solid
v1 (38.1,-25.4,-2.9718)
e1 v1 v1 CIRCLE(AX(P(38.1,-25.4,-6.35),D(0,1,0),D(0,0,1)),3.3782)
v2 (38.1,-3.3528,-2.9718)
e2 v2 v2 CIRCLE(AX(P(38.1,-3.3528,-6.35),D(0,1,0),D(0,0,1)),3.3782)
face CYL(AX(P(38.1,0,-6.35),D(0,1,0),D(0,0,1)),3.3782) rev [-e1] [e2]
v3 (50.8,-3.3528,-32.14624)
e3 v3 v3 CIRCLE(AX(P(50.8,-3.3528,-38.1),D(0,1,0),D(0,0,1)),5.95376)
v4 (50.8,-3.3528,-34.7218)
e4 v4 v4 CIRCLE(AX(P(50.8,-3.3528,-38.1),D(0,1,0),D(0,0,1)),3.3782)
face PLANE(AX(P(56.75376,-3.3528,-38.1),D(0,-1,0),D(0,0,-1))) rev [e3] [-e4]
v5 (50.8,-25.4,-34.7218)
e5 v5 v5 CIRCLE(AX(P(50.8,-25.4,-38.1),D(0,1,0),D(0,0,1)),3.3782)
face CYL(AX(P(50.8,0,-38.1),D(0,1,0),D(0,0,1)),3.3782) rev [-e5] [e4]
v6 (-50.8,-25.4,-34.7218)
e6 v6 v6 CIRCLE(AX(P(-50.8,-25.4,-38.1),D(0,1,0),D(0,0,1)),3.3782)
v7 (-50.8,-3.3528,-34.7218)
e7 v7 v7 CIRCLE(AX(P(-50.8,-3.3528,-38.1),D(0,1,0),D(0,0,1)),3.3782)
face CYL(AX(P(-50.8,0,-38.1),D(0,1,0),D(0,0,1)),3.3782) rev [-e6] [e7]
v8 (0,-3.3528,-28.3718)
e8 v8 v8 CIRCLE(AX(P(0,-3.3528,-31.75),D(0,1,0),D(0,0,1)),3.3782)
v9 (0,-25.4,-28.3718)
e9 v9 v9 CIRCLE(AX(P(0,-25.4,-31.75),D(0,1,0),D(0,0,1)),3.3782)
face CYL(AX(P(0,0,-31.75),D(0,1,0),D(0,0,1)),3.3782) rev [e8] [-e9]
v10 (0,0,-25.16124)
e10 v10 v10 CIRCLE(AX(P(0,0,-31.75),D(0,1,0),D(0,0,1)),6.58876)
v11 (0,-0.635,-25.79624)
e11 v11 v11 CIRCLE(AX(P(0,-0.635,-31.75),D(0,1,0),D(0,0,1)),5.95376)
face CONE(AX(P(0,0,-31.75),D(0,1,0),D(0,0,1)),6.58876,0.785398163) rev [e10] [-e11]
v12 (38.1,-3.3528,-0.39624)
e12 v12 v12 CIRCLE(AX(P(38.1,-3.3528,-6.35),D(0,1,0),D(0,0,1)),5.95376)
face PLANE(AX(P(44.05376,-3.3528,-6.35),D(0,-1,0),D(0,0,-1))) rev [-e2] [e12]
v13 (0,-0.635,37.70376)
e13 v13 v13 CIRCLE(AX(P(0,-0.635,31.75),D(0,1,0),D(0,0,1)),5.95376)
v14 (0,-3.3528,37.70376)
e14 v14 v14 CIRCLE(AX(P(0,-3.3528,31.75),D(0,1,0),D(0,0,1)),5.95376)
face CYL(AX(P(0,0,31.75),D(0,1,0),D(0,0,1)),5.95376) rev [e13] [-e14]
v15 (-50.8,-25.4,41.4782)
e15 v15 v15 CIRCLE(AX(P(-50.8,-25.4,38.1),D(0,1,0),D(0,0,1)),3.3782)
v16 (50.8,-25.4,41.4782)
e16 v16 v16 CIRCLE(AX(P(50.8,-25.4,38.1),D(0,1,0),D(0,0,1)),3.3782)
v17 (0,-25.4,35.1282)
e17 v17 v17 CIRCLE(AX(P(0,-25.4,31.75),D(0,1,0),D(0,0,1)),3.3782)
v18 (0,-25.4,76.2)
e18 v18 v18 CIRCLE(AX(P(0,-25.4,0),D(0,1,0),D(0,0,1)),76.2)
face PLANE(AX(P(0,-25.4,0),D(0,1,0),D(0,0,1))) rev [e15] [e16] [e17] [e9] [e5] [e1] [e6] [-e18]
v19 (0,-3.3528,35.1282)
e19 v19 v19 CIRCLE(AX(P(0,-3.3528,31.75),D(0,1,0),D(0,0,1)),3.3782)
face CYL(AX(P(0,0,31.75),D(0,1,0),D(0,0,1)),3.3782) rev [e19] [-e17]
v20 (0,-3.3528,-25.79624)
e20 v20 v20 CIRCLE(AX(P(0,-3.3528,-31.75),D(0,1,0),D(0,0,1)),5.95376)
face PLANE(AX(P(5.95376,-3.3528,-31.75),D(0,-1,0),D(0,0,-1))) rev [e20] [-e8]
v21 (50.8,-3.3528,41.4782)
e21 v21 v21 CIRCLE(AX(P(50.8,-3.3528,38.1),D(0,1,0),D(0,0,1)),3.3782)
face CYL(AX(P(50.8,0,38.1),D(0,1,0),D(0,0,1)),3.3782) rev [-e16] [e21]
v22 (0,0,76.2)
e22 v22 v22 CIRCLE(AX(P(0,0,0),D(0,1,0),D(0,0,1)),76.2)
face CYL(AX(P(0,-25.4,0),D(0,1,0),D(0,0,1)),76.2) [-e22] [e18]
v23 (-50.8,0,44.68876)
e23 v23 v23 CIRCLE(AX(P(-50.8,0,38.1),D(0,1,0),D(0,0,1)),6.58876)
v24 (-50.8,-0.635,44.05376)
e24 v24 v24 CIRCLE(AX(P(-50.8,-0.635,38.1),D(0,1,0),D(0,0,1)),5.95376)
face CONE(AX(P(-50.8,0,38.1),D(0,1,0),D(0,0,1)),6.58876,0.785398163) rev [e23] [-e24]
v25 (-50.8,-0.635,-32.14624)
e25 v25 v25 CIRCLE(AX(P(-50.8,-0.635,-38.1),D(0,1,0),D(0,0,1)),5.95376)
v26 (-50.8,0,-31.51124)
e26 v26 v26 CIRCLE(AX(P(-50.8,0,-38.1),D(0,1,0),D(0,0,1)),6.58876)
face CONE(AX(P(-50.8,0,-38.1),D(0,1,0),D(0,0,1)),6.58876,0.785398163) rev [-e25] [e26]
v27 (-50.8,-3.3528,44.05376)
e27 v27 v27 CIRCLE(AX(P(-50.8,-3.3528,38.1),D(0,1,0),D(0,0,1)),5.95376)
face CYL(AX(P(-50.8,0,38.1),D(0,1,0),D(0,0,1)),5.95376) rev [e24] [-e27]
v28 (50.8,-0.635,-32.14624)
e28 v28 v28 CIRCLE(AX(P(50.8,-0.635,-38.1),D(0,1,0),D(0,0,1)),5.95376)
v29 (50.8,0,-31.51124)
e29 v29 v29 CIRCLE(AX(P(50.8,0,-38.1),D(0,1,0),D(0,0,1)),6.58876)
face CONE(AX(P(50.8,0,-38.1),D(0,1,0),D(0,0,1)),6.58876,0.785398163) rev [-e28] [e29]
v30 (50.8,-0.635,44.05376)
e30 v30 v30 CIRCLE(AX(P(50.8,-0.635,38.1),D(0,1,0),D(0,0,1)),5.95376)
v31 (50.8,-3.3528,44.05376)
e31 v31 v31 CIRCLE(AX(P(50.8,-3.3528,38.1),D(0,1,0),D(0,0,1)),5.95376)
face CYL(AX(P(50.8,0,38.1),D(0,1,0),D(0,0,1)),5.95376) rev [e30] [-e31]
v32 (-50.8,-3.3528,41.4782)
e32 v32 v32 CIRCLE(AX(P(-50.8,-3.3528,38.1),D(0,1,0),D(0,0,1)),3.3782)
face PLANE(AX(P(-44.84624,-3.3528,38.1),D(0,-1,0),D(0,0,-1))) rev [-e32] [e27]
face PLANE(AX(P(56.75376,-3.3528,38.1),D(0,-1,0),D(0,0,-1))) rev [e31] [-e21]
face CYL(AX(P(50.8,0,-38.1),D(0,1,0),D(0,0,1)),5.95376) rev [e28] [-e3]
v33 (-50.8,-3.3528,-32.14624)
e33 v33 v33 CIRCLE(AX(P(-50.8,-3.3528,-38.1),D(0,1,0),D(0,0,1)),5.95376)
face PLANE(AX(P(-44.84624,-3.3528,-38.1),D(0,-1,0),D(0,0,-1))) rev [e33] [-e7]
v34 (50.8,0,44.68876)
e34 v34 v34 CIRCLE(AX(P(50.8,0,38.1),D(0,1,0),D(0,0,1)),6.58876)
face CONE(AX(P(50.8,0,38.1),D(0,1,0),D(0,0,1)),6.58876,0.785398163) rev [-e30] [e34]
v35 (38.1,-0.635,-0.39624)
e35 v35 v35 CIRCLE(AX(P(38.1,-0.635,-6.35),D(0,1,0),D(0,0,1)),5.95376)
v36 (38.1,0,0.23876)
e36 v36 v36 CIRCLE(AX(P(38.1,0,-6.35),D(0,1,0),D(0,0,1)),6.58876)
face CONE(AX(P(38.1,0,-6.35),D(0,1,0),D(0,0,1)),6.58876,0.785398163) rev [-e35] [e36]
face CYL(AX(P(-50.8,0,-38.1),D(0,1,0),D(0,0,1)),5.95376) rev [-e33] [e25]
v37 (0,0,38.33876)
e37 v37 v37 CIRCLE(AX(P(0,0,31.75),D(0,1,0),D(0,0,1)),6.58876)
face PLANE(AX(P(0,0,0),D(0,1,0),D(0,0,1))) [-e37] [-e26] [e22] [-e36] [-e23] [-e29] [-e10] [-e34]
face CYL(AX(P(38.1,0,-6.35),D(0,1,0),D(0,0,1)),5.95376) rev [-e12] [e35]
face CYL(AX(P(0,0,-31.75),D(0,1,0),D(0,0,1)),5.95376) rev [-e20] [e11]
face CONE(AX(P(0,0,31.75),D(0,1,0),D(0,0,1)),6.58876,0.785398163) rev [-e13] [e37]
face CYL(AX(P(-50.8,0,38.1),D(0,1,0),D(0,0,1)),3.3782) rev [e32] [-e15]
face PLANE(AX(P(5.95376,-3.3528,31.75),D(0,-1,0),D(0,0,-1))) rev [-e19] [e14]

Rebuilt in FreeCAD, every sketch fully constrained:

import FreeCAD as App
import Part
import Sketcher

V = App.Vector
Q = App.Units.Quantity

doc = App.newDocument("Part")
body = doc.addObject("PartDesign::Body", "Body")

# Sketch on XZ plane
sketch1 = doc.addObject("Sketcher::SketchObject", "Sketch")
body.addObject(sketch1)
sketch1.AttachmentSupport = (doc.XZ_Plane, [""])
sketch1.MapMode = "FlatFace"
sketch1.addGeometry(Part.Circle(V(0, 0, 0), V(0, 0, 1), 76), False)
sketch1.addConstraint([
    Sketcher.Constraint("Coincident", 0, 3, -1, 1),
    Sketcher.Constraint("Diameter", 0, Q("6 in")),
])
pad1 = doc.addObject("PartDesign::Pad", "Pad")
body.addObject(pad1)
pad1.Profile = sketch1
pad1.Length = Q("1 in")

# Sketch on YZ plane
sketch2 = doc.addObject("Sketcher::SketchObject", "Sketch001")
body.addObject(sketch2)
sketch2.AttachmentSupport = (doc.YZ_Plane, [""])
sketch2.MapMode = "FlatFace"
sketch2.addGeometry([
    Part.LineSegment(V(-25.4, -31.8, 0), V(0, -31.8, 0)),  # 0
    Part.LineSegment(V(0, -31.8, 0), V(0, -25.2, 0)),  # 1
    Part.LineSegment(V(0, -25.2, 0), V(-0.6, -25.8, 0)),  # 2
    Part.LineSegment(V(-0.6, -25.8, 0), V(-3.4, -25.8, 0)),  # 3
    Part.LineSegment(V(-3.4, -25.8, 0), V(-3.4, -28.4, 0)),  # 4
    Part.LineSegment(V(-3.4, -28.4, 0), V(-25.4, -28.4, 0)),  # 5
    Part.LineSegment(V(-25.4, -28.4, 0), V(-25.4, -31.8, 0)),  # 6
], False)
sketch2.addGeometry(Part.LineSegment(V(0, -31.8, 0), V(-25.4, -31.8, 0)), True)  # axis
sketch2.addConstraint([
    Sketcher.Constraint("Coincident", 0, 2, 1, 1),
    Sketcher.Constraint("Coincident", 1, 2, 2, 1),
    Sketcher.Constraint("Coincident", 2, 2, 3, 1),
    Sketcher.Constraint("Coincident", 3, 2, 4, 1),
    Sketcher.Constraint("Coincident", 4, 2, 5, 1),
    Sketcher.Constraint("Coincident", 5, 2, 6, 1),
    Sketcher.Constraint("Coincident", 6, 2, 0, 1),
    Sketcher.Constraint("Horizontal", 0),
    Sketcher.Constraint("Vertical", 1),
    Sketcher.Constraint("Horizontal", 3),
    Sketcher.Constraint("Vertical", 4),
    Sketcher.Constraint("Horizontal", 5),
    Sketcher.Constraint("Vertical", 6),
    Sketcher.Constraint("Horizontal", 7),
    Sketcher.Constraint("Coincident", 7, 1, 0, 2),
    Sketcher.Constraint("PointOnObject", 0, 2, -2),
    Sketcher.Constraint("Vertical", 5, 2, 7, 2),
    Sketcher.Constraint("DistanceX", 0, 1, 0, 2, Q("1 in")),
    Sketcher.Constraint("Angle", 2, Q("-135 deg")),
    Sketcher.Constraint("DistanceX", 3, 2, 3, 1, Q("0.107 in")),
    Sketcher.Constraint("DistanceX", 5, 2, 5, 1, Q("0.868 in")),
    Sketcher.Constraint("DistanceY", 6, 2, 6, 1, Q("0.133 in")),
    Sketcher.Constraint("DistanceY", 0, 2, -1, 1, Q("1.25 in")),
    Sketcher.Constraint("DistanceY", 1, 1, 1, 2, Q("0.2594 in")),
])
groove = doc.addObject("PartDesign::Groove", "Groove")
body.addObject(groove)
groove.Profile = sketch2
groove.ReferenceAxis = (sketch2, ["Axis0"])
groove.Angle = 360
doc.recompute()

datumline = doc.addObject("PartDesign::Line", "DatumLine")
body.addObject(datumline)
datumline.Placement = App.Placement(V(0, 0, 0), App.Rotation(V(0, 0, 1), V(0.832050294, 0, 0.554700196)))
linearpattern = doc.addObject("PartDesign::LinearPattern", "LinearPattern")
body.addObject(linearpattern)
linearpattern.Originals = [groove]
linearpattern.Direction = (datumline, [""])
linearpattern.Mode = "offset"
linearpattern.Offset = 45.790501
linearpattern.Occurrences = 2
body.Tip = linearpattern
doc.recompute()

linearpattern2 = doc.addObject("PartDesign::LinearPattern", "LinearPattern001")
body.addObject(linearpattern2)
linearpattern2.Originals = [groove]
linearpattern2.Direction = (doc.Z_Axis, [""])
linearpattern2.Mode = "offset"
linearpattern2.Offset = Q("2.5 in")
linearpattern2.Occurrences = 2
body.Tip = linearpattern2
doc.recompute()

datumline2 = doc.addObject("PartDesign::Line", "DatumLine001")
body.addObject(datumline2)
datumline2.Placement = App.Placement(V(0, 0, 0), App.Rotation(V(0, 0, 1), V(0.588171698, 0, 0.808736084)))
linearpattern3 = doc.addObject("PartDesign::LinearPattern", "LinearPattern002")
body.addObject(linearpattern3)
linearpattern3.Originals = [groove]
linearpattern3.Direction = (datumline2, [""])
linearpattern3.Mode = "offset"
linearpattern3.Offset = 86.369338
linearpattern3.Occurrences = 2
body.Tip = linearpattern3
doc.recompute()

datumline3 = doc.addObject("PartDesign::Line", "DatumLine002")
body.addObject(datumline3)
datumline3.Placement = App.Placement(V(0, 0, 0), App.Rotation(V(0, 0, 1), V(0.992277877, 0, -0.124034735)))
linearpattern4 = doc.addObject("PartDesign::LinearPattern", "LinearPattern003")
body.addObject(linearpattern4)
linearpattern4.Originals = [groove]
linearpattern4.Direction = (datumline3, [""])
linearpattern4.Mode = "offset"
linearpattern4.Offset = 51.195337
linearpattern4.Occurrences = 2
body.Tip = linearpattern4
doc.recompute()

datumline4 = doc.addObject("PartDesign::Line", "DatumLine003")
body.addObject(datumline4)
datumline4.Placement = App.Placement(V(0, 0, 0), App.Rotation(V(0, 0, 1), V(-0.992277877, 0, -0.124034735)))
linearpattern5 = doc.addObject("PartDesign::LinearPattern", "LinearPattern004")
body.addObject(linearpattern5)
linearpattern5.Originals = [groove]
linearpattern5.Direction = (datumline4, [""])
linearpattern5.Mode = "offset"
linearpattern5.Offset = 51.195337
linearpattern5.Occurrences = 2
body.Tip = linearpattern5
doc.recompute()

datumline5 = doc.addObject("PartDesign::Line", "DatumLine004")
body.addObject(datumline5)
datumline5.Placement = App.Placement(V(0, 0, 0), App.Rotation(V(0, 0, 1), V(-0.588171698, 0, 0.808736084)))
linearpattern6 = doc.addObject("PartDesign::LinearPattern", "LinearPattern005")
body.addObject(linearpattern6)
linearpattern6.Originals = [groove]
linearpattern6.Direction = (datumline5, [""])
linearpattern6.Mode = "offset"
linearpattern6.Offset = 86.369338
linearpattern6.Occurrences = 2
body.Tip = linearpattern6

doc.recompute()
